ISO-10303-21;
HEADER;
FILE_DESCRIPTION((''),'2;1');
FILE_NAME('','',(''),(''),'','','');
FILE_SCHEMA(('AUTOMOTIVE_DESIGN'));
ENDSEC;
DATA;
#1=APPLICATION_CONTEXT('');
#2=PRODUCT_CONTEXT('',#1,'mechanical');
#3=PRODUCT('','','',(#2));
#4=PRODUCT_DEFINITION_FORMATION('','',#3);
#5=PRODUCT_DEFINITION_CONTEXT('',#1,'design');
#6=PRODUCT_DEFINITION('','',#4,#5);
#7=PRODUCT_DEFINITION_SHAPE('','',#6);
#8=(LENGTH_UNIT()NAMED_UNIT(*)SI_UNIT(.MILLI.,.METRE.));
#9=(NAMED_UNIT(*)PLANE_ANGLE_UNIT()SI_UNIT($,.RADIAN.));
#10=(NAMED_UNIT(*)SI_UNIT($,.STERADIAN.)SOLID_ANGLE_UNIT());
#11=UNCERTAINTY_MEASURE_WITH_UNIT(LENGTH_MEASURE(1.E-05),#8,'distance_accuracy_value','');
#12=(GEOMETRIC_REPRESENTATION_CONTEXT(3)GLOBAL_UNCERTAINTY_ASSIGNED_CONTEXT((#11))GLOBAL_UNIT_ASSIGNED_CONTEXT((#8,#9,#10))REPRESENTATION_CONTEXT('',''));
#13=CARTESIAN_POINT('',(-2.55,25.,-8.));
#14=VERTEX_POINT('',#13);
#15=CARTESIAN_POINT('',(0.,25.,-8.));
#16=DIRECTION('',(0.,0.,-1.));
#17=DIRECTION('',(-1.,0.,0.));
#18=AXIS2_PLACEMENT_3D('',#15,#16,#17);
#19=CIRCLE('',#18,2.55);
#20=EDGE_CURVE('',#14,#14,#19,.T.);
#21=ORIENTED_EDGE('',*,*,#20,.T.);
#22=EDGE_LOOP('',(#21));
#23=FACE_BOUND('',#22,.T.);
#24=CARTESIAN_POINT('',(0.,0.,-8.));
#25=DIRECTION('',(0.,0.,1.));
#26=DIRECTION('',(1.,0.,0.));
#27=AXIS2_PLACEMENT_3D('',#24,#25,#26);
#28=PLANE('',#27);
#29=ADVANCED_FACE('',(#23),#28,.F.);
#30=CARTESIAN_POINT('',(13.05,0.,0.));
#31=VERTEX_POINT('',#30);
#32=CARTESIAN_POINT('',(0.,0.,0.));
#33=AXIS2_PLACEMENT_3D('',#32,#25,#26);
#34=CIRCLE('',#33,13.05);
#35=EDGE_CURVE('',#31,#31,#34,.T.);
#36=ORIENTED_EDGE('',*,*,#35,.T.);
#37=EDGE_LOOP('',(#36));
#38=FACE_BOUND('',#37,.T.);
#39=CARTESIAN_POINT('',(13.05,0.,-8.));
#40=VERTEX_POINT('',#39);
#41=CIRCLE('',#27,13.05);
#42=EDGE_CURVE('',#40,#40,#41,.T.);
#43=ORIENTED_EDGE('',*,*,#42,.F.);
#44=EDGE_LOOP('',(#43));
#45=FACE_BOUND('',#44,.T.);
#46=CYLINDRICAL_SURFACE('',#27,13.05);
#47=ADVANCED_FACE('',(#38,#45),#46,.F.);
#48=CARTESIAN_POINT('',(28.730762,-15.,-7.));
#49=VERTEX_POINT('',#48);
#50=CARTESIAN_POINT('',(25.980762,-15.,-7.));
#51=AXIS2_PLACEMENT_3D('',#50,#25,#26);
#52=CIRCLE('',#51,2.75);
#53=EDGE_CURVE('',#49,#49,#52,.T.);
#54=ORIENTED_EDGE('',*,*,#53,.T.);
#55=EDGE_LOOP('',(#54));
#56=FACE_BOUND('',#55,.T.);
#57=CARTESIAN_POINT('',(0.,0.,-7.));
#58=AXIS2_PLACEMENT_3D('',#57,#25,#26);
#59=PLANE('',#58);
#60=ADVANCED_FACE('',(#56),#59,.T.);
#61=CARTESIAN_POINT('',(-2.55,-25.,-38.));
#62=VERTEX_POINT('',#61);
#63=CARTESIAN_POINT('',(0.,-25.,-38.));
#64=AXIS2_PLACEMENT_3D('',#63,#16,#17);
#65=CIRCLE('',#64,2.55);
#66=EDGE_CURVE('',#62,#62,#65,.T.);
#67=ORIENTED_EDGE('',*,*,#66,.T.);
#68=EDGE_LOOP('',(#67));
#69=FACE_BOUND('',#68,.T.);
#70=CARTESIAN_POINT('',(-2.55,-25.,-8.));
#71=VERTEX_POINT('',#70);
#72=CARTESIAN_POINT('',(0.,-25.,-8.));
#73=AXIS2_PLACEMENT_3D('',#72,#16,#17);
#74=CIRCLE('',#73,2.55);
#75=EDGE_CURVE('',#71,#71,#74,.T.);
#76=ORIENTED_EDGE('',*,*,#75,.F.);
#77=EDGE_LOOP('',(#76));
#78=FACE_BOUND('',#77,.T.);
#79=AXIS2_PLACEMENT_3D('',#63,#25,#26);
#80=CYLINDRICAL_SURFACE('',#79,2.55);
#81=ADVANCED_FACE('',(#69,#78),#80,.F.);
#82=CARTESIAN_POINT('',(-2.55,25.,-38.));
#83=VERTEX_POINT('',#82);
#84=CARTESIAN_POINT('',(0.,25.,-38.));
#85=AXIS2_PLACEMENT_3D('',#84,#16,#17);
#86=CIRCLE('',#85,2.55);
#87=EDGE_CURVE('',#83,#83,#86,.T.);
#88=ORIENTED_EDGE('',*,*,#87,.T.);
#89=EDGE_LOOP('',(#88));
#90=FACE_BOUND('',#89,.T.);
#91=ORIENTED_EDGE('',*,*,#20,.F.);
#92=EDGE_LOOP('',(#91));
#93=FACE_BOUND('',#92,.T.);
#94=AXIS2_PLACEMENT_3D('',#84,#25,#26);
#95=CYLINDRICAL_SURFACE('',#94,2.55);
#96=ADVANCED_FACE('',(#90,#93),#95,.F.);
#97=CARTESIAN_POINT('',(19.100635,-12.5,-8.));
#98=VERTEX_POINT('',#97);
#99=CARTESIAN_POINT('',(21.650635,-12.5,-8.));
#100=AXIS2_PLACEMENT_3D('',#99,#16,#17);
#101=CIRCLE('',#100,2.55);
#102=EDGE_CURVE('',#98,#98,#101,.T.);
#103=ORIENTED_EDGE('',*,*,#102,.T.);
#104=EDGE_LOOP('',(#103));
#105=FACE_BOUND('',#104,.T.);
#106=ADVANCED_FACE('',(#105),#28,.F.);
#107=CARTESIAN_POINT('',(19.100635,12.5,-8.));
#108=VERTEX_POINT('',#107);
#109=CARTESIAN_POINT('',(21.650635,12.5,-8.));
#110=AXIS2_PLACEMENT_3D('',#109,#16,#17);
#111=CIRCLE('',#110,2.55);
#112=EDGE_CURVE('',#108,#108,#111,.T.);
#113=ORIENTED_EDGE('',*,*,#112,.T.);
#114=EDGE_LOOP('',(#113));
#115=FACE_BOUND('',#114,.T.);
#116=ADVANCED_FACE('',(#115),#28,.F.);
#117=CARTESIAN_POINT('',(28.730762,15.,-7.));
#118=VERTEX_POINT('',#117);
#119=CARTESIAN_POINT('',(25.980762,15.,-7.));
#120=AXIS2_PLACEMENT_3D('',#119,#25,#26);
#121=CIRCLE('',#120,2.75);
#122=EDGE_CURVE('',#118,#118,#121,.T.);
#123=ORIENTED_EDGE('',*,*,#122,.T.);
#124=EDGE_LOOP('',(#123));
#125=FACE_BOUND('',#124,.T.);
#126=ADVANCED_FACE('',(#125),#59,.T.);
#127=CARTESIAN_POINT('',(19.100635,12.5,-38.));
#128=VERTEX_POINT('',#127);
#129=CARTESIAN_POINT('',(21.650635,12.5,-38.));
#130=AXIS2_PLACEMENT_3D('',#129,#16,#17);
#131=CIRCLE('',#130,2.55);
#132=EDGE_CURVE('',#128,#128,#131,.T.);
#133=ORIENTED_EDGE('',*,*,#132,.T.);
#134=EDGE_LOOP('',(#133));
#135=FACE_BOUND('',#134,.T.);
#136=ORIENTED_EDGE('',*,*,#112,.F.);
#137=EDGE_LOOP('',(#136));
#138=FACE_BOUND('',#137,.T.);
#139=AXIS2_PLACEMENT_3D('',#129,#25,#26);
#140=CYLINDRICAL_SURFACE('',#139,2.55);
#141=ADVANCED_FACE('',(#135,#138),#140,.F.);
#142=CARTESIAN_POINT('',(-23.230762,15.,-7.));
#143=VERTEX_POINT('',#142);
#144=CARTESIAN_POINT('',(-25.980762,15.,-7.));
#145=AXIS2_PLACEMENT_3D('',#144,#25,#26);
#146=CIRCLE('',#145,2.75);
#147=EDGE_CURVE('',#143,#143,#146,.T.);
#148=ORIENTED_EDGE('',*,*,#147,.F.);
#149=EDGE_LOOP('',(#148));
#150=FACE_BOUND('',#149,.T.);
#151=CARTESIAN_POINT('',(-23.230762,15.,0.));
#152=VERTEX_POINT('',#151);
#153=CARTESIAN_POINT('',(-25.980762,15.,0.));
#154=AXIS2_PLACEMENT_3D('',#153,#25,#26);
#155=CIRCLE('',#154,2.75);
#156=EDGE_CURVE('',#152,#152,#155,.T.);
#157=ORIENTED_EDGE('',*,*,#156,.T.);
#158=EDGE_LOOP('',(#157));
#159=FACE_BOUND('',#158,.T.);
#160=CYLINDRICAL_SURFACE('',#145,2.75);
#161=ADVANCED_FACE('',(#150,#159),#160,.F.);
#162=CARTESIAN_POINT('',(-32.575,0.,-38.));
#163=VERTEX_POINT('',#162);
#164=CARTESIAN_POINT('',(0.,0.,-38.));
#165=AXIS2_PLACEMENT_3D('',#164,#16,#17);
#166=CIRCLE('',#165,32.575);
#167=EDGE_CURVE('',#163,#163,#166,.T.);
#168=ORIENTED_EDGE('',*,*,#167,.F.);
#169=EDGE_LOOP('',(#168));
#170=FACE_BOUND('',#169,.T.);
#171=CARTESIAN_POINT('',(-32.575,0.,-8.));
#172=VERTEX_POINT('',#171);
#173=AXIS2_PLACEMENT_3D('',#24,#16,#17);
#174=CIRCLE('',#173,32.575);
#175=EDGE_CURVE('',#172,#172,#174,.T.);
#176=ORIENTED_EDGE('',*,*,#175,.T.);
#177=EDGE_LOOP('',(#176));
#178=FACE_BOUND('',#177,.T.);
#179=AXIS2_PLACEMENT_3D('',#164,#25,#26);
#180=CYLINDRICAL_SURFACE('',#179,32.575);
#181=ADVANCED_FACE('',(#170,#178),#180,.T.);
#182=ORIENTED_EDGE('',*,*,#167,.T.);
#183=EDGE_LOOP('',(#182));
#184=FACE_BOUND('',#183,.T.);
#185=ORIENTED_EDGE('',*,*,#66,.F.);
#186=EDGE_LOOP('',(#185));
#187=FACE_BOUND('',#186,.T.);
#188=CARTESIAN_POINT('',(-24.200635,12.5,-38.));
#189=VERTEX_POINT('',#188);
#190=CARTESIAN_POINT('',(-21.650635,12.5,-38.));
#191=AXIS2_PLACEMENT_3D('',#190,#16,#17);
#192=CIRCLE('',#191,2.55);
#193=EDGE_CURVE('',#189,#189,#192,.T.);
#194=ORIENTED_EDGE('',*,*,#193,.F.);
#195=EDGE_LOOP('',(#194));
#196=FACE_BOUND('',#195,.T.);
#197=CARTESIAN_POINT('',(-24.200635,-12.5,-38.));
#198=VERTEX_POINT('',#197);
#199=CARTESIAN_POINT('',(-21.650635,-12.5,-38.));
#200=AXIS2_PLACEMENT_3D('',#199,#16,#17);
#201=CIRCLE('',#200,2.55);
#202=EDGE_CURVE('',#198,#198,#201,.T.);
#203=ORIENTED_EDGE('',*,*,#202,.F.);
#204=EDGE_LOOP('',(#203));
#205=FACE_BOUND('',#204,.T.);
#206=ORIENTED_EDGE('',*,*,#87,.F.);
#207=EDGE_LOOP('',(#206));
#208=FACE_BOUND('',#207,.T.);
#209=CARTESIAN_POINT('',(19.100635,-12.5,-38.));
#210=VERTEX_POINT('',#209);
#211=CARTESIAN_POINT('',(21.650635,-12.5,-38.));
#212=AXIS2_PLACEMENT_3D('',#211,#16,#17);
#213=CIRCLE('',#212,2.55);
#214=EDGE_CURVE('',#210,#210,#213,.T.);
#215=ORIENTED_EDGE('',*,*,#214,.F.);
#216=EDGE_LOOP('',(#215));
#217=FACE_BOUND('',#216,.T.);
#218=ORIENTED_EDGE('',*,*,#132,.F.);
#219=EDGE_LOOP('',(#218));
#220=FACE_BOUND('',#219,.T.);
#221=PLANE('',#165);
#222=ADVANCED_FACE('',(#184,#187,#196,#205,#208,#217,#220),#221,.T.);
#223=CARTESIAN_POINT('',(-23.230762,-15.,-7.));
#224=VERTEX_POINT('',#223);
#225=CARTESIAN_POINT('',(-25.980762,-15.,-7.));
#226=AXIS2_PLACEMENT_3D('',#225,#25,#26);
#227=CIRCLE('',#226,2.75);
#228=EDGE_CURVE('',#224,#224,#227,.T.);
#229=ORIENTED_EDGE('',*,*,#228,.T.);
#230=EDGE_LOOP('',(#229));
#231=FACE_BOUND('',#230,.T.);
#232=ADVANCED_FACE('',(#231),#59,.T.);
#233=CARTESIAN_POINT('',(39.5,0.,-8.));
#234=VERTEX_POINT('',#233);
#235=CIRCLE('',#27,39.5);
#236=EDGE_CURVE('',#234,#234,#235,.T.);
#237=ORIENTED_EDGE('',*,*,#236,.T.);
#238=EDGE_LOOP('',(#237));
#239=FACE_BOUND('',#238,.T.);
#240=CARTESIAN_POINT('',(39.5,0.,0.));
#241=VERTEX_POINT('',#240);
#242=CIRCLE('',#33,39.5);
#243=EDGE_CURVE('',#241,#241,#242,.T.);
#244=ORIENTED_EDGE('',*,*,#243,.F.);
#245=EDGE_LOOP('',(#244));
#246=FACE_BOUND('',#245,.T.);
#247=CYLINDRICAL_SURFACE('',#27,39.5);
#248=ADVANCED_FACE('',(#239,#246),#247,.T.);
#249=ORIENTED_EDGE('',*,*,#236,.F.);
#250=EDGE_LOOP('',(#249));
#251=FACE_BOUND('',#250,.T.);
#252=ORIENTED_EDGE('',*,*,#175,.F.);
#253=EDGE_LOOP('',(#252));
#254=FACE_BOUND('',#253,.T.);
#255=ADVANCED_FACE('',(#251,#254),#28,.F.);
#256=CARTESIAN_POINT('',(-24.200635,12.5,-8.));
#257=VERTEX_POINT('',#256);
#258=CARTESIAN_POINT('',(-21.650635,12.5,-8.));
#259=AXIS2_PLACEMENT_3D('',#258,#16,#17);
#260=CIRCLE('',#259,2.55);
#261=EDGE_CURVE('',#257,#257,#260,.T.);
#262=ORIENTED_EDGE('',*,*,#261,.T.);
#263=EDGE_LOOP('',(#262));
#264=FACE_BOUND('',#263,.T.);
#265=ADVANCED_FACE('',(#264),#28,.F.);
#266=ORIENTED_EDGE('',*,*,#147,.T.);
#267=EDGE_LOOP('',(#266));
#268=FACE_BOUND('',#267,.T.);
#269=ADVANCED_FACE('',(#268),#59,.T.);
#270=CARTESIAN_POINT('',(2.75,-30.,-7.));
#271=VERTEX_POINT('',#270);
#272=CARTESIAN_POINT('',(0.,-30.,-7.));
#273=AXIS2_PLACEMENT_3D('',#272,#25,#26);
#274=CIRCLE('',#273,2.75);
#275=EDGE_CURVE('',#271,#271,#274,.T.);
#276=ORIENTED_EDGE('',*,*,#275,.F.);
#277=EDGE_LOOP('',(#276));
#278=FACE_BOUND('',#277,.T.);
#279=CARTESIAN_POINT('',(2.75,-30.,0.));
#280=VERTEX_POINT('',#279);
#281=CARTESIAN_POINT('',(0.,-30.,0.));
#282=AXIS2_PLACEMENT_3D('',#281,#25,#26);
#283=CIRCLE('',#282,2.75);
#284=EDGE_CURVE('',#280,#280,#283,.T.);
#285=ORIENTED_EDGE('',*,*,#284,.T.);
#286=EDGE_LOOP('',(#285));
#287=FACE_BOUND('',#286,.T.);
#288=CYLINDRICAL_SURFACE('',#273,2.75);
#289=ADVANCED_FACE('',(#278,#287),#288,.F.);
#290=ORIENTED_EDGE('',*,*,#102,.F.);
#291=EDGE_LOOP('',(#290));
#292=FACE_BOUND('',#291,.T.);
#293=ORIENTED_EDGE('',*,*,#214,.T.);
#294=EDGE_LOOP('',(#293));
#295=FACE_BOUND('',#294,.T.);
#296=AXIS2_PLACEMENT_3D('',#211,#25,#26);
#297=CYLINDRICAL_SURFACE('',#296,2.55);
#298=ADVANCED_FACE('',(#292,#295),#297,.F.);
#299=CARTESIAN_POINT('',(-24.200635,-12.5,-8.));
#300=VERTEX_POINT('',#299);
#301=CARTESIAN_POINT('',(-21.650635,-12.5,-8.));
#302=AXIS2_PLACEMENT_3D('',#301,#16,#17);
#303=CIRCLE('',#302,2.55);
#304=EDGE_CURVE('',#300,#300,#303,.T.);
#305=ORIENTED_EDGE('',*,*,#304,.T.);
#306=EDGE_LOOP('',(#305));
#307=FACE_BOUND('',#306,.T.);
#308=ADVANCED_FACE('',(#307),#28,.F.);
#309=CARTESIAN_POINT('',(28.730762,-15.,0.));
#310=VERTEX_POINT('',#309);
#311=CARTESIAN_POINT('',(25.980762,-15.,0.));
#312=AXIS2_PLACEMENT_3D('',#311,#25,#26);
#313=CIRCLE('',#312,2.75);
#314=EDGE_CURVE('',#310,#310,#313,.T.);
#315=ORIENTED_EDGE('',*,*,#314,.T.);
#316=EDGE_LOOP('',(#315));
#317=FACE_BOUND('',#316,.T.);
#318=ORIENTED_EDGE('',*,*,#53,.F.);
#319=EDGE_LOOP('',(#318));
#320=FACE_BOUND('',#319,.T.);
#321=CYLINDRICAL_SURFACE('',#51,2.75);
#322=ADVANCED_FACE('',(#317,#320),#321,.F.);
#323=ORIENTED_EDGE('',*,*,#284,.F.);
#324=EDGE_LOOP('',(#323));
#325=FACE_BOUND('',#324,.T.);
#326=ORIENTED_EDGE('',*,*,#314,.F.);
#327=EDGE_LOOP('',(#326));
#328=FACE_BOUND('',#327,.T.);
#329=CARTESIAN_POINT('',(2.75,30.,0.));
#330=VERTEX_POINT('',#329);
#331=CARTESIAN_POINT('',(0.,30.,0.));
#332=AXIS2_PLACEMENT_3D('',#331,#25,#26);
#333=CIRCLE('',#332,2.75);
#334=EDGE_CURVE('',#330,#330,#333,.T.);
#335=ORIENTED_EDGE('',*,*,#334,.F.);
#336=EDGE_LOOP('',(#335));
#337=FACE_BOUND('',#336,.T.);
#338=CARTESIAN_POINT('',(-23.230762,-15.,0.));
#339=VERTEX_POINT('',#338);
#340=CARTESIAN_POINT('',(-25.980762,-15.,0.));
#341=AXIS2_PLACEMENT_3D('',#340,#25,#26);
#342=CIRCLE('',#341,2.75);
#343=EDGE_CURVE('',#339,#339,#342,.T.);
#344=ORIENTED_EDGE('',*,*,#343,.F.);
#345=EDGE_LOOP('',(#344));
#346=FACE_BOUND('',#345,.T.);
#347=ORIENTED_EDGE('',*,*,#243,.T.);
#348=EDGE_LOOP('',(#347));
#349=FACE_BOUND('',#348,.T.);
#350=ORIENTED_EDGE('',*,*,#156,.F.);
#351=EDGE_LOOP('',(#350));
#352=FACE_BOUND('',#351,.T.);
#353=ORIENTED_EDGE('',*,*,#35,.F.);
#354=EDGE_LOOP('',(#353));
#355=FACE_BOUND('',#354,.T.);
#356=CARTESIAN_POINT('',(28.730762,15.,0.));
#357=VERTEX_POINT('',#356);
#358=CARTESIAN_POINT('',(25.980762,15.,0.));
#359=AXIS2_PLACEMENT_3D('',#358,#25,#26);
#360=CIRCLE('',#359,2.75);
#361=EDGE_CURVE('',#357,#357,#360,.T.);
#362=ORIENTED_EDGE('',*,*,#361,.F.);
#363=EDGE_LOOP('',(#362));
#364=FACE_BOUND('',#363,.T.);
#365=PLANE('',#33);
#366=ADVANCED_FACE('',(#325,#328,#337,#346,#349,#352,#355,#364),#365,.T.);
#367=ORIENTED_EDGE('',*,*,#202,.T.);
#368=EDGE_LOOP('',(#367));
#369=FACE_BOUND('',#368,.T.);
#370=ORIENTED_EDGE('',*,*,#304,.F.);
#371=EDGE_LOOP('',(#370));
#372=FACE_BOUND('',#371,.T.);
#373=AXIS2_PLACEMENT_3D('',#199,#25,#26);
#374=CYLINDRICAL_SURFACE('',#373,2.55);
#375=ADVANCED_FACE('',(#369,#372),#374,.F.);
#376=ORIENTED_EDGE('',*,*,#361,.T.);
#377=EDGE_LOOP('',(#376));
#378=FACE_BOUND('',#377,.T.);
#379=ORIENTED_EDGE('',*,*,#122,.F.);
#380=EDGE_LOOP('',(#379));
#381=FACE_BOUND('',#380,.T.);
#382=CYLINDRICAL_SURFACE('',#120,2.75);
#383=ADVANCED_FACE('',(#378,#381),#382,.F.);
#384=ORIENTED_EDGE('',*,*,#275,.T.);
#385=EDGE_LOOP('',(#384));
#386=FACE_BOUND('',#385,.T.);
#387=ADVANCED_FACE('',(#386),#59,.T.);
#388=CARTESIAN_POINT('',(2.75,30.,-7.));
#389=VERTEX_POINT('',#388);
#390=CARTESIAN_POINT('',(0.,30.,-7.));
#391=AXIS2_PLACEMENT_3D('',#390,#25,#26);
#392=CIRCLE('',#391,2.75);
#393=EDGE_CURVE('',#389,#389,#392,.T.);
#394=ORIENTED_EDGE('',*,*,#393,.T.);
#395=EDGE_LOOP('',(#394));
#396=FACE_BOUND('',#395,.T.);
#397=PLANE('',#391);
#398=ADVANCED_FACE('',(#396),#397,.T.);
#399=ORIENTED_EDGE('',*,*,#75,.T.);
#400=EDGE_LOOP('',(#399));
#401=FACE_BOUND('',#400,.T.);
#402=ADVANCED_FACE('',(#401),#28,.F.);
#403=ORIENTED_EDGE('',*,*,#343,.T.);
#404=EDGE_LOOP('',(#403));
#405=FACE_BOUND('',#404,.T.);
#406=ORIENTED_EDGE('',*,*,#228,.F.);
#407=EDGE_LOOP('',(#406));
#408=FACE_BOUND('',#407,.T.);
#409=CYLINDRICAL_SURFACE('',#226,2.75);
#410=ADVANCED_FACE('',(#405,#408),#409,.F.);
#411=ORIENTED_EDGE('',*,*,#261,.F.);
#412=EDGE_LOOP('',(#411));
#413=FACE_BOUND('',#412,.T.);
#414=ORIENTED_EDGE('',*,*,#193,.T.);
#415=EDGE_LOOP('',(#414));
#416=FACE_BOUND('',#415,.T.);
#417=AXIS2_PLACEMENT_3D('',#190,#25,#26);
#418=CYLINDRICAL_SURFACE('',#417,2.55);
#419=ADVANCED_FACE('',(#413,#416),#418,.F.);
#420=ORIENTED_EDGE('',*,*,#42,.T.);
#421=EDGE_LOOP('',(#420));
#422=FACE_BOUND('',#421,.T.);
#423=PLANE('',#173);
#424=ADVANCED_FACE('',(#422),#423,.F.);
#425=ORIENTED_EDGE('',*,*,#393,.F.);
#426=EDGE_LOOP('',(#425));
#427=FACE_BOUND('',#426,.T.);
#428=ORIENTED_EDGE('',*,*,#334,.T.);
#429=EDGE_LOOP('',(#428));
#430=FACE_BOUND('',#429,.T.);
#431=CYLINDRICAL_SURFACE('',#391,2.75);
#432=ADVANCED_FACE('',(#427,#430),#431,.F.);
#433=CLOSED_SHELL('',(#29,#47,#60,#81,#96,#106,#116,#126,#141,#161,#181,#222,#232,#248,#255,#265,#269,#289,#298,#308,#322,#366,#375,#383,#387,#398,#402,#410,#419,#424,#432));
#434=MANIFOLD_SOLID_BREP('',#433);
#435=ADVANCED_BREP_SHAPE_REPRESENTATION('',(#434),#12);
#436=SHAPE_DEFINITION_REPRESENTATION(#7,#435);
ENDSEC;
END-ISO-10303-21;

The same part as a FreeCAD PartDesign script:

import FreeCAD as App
import Part
import Sketcher

V = App.Vector
Q = App.Units.Quantity

doc = App.newDocument("Part")
body = doc.addObject("PartDesign::Body", "Body")

sketch1 = body.newObject("Sketcher::SketchObject", "Sketch")
sketch1.AttachmentSupport = (doc.getObject("XY_Plane"), [""])
sketch1.MapMode = "FlatFace"
sketch1.addGeometry(Part.Circle(V(0, 0, 0), V(0, 0, 1), 40), False)
sketch1.addGeometry(Part.Circle(V(0, 0, 0), V(0, 0, 1), 13), False)
sketch1.addConstraint(Sketcher.Constraint("Coincident", 0, 3, -1, 1))
sketch1.addConstraint(Sketcher.Constraint("Coincident", 1, 3, -1, 1))
sketch1.addConstraint(Sketcher.Constraint("Diameter", 0, Q("79 mm")))
sketch1.addConstraint(Sketcher.Constraint("Diameter", 1, Q("26.1 mm")))
pad1 = body.newObject("PartDesign::Pad", "Pad")
pad1.Profile = sketch1
pad1.Length = 8
pad1.Reversed = True

sketch2 = body.newObject("Sketcher::SketchObject", "Sketch001")
sketch2.AttachmentSupport = (doc.getObject("XY_Plane"), [""])
sketch2.MapMode = "FlatFace"
sketch2.AttachmentOffset = App.Placement(V(0, 0, -8), App.Rotation())
sketch2.addGeometry(Part.Circle(V(0, 0, 0), V(0, 0, 1), 32.6), False)
sketch2.addGeometry(Part.Circle(V(21.7, -12.5, 0), V(0, 0, 1), 2.5), False)
sketch2.addGeometry(Part.Circle(V(0, -25, 0), V(0, 0, 1), 2.5), False)
sketch2.addGeometry(Part.Circle(V(-21.7, -12.5, 0), V(0, 0, 1), 2.5), False)
sketch2.addGeometry(Part.Circle(V(21.7, 12.5, 0), V(0, 0, 1), 2.5), False)
sketch2.addGeometry(Part.Circle(V(-21.7, 12.5, 0), V(0, 0, 1), 2.5), False)
sketch2.addGeometry(Part.Circle(V(0, 25, 0), V(0, 0, 1), 2.5), False)
sketch2.addConstraint(Sketcher.Constraint("Coincident", 0, 3, -1, 1))
sketch2.addConstraint(Sketcher.Constraint("Equal", 1, 2))
sketch2.addConstraint(Sketcher.Constraint("Equal", 2, 3))
sketch2.addConstraint(Sketcher.Constraint("Equal", 3, 4))
sketch2.addConstraint(Sketcher.Constraint("Equal", 4, 5))
sketch2.addConstraint(Sketcher.Constraint("Equal", 5, 6))
sketch2.addConstraint(Sketcher.Constraint("Symmetric", 3, 3, 4, 3, -1, 1))
sketch2.addConstraint(Sketcher.Constraint("Symmetric", 1, 3, 5, 3, -1, 1))
sketch2.addConstraint(Sketcher.Constraint("Symmetric", 2, 3, 6, 3, -1, 1))
sketch2.addConstraint(Sketcher.Constraint("Symmetric", 1, 3, 3, 3, -2))
sketch2.addConstraint(Sketcher.Constraint("PointOnObject", 2, 3, -2))
sketch2.addConstraint(Sketcher.Constraint("Diameter", 1, Q("5.1 mm")))
sketch2.addConstraint(Sketcher.Constraint("Diameter", 0, Q("65.15 mm")))
sketch2.addConstraint(Sketcher.Constraint("DistanceY", 2, 3, -1, 1, Q("25 mm")))
sketch2.addConstraint(Sketcher.Constraint("DistanceY", 1, 3, 4, 3, Q("25 mm")))
sketch2.addConstraint(Sketcher.Constraint("DistanceX", 3, 3, 1, 3, Q("43.30127 mm")))
pad2 = body.newObject("PartDesign::Pad", "Pad001")
pad2.Profile = sketch2
pad2.Length = 30
pad2.Reversed = True

sketch3 = body.newObject("Sketcher::SketchObject", "Sketch002")
sketch3.AttachmentSupport = (doc.getObject("XY_Plane"), [""])
sketch3.MapMode = "FlatFace"
sketch3.addGeometry(Part.Circle(V(-26, 15, 0), V(0, 0, 1), 2.8), False)
sketch3.addGeometry(Part.Circle(V(26, 15, 0), V(0, 0, 1), 2.8), False)
sketch3.addGeometry(Part.Circle(V(26, -15, 0), V(0, 0, 1), 2.8), False)
sketch3.addGeometry(Part.Circle(V(0, -30, 0), V(0, 0, 1), 2.8), False)
sketch3.addGeometry(Part.Circle(V(-26, -15, 0), V(0, 0, 1), 2.8), False)
sketch3.addGeometry(Part.Circle(V(0, 30, 0), V(0, 0, 1), 2.8), False)
sketch3.addConstraint(Sketcher.Constraint("Equal", 0, 1))
sketch3.addConstraint(Sketcher.Constraint("Equal", 1, 2))
sketch3.addConstraint(Sketcher.Constraint("Equal", 2, 3))
sketch3.addConstraint(Sketcher.Constraint("Equal", 3, 4))
sketch3.addConstraint(Sketcher.Constraint("Equal", 4, 5))
sketch3.addConstraint(Sketcher.Constraint("Symmetric", 0, 3, 2, 3, -1, 1))
sketch3.addConstraint(Sketcher.Constraint("Symmetric", 1, 3, 4, 3, -1, 1))
sketch3.addConstraint(Sketcher.Constraint("Symmetric", 3, 3, 5, 3, -1, 1))
sketch3.addConstraint(Sketcher.Constraint("Symmetric", 0, 3, 1, 3, -2))
sketch3.addConstraint(Sketcher.Constraint("PointOnObject", 3, 3, -2))
sketch3.addConstraint(Sketcher.Constraint("Diameter", 0, Q("5.5 mm")))
sketch3.addConstraint(Sketcher.Constraint("DistanceY", -1, 1, 0, 3, Q("15 mm")))
sketch3.addConstraint(Sketcher.Constraint("DistanceY", 3, 3, -1, 1, Q("30 mm")))
sketch3.addConstraint(Sketcher.Constraint("DistanceX", 0, 3, -1, 1, Q("25.980762 mm")))
pocket1 = body.newObject("PartDesign::Pocket", "Pocket")
pocket1.Profile = sketch3
pocket1.Length = 7

doc.recompute()
